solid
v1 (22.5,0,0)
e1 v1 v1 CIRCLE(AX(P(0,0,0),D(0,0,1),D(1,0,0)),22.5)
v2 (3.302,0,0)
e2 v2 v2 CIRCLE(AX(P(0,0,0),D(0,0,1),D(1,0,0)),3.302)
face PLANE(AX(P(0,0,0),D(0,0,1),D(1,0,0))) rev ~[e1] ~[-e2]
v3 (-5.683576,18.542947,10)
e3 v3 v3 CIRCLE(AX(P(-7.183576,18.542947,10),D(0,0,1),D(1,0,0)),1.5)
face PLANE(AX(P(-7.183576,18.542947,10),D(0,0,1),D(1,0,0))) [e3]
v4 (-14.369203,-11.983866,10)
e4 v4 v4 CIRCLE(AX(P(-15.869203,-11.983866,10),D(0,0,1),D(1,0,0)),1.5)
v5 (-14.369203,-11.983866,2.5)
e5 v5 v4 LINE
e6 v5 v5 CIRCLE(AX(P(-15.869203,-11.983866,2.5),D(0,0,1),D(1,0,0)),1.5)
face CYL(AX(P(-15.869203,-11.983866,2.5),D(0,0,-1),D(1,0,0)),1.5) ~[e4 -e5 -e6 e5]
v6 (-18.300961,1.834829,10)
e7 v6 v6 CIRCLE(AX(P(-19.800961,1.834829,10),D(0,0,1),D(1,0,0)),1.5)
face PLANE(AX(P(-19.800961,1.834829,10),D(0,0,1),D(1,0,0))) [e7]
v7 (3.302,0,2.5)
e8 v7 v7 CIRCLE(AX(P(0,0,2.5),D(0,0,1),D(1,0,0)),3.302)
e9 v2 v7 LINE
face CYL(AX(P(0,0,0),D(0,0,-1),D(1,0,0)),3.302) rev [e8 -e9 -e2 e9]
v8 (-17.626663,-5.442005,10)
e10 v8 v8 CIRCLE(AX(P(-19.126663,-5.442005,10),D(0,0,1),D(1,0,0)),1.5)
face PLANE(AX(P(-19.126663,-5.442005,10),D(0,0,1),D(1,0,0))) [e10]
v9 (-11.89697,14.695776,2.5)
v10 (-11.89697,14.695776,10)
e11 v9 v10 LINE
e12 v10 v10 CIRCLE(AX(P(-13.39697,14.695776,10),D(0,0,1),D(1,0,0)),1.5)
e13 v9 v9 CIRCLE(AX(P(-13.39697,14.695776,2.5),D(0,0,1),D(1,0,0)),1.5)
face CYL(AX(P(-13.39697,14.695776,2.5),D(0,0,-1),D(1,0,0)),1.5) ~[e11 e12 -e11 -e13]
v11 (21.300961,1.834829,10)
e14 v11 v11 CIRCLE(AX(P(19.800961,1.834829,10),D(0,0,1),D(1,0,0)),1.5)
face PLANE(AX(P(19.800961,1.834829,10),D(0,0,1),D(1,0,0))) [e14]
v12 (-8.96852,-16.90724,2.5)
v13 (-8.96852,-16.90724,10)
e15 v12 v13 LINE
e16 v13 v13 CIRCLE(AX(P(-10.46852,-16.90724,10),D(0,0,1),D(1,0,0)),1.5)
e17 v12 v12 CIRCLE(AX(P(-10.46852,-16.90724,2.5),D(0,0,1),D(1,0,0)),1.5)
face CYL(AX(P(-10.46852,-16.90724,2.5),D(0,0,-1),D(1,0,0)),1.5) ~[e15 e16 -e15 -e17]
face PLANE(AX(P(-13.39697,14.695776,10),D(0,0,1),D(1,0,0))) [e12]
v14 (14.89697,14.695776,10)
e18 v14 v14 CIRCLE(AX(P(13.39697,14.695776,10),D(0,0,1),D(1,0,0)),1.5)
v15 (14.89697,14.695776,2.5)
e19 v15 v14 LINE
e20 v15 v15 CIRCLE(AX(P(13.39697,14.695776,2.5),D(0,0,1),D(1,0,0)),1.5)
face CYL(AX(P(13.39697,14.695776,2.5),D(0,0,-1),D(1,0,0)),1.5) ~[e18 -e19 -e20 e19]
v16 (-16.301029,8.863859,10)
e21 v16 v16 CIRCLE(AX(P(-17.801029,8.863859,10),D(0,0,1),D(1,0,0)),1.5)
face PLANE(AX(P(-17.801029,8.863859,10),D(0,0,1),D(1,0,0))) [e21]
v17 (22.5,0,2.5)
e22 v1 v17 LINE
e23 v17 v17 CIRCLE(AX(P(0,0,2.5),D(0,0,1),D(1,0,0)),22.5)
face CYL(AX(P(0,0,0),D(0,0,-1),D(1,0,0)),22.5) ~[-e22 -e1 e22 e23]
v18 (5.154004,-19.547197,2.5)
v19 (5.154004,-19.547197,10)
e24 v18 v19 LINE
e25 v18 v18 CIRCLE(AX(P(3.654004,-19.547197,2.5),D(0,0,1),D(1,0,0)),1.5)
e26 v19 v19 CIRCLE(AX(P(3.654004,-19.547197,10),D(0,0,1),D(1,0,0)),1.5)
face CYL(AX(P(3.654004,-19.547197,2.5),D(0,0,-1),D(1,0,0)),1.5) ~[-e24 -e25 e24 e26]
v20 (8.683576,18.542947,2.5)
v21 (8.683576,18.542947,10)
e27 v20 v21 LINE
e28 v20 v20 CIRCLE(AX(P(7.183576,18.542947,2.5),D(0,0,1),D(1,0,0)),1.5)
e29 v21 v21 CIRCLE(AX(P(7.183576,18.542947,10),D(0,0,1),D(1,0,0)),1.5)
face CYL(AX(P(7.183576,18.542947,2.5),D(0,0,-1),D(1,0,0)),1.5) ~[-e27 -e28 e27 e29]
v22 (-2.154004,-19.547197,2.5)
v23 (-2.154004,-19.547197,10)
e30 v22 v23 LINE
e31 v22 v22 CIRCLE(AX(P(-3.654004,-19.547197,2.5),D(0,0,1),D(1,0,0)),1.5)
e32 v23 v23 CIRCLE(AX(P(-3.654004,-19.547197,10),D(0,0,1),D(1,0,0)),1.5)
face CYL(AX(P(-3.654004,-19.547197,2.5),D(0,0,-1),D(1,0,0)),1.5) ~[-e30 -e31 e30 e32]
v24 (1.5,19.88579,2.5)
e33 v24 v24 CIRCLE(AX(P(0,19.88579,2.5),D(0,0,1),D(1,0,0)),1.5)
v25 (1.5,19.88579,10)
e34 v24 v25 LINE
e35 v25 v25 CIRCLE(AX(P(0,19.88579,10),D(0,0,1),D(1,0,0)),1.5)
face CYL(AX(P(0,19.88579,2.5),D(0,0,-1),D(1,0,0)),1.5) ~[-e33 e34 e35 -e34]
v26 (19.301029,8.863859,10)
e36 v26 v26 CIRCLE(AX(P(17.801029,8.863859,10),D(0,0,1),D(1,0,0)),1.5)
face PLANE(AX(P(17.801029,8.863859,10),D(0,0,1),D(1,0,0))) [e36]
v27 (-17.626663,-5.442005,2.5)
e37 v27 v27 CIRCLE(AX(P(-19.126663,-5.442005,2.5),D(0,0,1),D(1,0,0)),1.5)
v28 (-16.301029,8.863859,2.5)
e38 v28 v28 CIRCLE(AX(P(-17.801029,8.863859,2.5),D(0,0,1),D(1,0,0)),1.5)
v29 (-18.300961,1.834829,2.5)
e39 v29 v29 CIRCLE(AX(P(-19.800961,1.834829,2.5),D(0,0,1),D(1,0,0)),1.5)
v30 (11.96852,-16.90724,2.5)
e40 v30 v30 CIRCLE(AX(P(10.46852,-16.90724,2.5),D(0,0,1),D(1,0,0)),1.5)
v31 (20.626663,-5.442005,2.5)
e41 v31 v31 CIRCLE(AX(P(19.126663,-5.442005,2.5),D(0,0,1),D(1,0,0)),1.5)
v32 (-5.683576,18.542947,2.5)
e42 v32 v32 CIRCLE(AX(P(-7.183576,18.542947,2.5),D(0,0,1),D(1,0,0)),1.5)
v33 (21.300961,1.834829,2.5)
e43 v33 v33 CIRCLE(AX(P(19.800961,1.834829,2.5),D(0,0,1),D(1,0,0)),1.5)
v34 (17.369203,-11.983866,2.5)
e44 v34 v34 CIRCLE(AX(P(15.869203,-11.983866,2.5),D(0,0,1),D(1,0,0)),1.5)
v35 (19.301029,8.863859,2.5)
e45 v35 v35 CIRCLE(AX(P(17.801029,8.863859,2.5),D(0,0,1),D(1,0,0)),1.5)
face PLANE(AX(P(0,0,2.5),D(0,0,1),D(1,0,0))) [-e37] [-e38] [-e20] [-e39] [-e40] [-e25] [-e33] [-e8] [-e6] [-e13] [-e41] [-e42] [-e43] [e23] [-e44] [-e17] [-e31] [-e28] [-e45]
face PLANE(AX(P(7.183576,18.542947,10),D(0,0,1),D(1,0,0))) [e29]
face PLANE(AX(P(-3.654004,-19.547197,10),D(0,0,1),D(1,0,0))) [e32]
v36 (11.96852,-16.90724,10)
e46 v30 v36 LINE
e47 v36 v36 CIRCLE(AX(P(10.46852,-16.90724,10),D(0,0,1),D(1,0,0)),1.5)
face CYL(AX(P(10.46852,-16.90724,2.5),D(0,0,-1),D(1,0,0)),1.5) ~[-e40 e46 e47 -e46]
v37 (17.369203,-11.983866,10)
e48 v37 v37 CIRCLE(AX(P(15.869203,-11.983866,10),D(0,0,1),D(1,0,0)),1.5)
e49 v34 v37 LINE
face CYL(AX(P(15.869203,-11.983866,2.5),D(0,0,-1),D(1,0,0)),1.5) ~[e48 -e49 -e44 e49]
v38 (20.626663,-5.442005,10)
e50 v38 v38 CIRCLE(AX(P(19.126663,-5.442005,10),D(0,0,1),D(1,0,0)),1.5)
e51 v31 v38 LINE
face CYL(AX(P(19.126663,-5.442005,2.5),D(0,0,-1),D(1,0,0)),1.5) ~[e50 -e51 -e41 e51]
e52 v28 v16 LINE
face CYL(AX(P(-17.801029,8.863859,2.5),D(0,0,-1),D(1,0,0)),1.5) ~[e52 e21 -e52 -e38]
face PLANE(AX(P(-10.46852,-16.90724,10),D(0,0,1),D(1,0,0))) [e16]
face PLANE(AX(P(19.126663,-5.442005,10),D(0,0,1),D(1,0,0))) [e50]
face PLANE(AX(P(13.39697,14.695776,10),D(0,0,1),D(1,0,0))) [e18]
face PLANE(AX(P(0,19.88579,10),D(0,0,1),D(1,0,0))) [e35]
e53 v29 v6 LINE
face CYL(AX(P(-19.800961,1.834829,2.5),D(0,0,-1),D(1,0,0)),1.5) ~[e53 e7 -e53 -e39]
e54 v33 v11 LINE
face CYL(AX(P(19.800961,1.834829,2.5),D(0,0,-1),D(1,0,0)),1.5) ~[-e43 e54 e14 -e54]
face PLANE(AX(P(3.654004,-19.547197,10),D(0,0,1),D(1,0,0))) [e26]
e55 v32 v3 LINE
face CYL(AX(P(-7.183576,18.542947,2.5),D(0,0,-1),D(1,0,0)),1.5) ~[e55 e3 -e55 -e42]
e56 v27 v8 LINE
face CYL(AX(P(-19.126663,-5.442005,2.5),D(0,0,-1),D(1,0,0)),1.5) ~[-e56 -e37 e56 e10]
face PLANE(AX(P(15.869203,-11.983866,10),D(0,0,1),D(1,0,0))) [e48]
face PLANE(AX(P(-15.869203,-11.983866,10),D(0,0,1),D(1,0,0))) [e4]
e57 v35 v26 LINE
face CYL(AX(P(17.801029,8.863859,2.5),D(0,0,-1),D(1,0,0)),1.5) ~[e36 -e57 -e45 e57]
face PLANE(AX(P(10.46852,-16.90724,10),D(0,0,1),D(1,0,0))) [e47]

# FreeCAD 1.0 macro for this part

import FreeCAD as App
import Part
import Sketcher

V = App.Vector
Q = App.Units.Quantity

doc = App.newDocument("Part")
params = doc.addObject("Spreadsheet::Sheet", "Params")
for row, (alias, value) in enumerate([
    ("sketch1_diameter", "45 mm"),
    ("pad1_length", "2.5 mm"),
    ("sketch2_diameter", "3 mm"),
    ("pad2_length", "7.5 mm"),
], start=1):
    params.set(f"A{row}", alias)
    params.set(f"B{row}", "=" + value)
    params.setAlias(f"B{row}", alias)

body = doc.addObject("PartDesign::Body", "Body")

sketch1 = doc.addObject("Sketcher::SketchObject", "Sketch")
body.addObject(sketch1)
sketch1.AttachmentSupport = (doc.XY_Plane, [""])
sketch1.MapMode = "FlatFace"
sketch1.addGeometry([
    Part.Circle(V(0, 0, 0), V(0, 0, 1), 22.5),
    Part.Circle(V(0, 0, 0), V(0, 0, 1), 3.3),
], False)
sketch1.addConstraint([
    Sketcher.Constraint("Coincident", 0, 3, -1, 1),
    Sketcher.Constraint("Coincident", 1, 3, -1, 1),
    Sketcher.Constraint("Diameter", 0, Q("45 mm")),
    Sketcher.Constraint("Diameter", 1, Q("6.604 mm")),
])
sketch1.setExpression("Constraints[2]", "Params.sketch1_diameter")
pad1 = doc.addObject("PartDesign::Pad", "Pad")
body.addObject(pad1)
pad1.Profile = sketch1
pad1.setExpression("Length", "Params.pad1_length")

sketch2 = doc.addObject("Sketcher::SketchObject", "Sketch001")
body.addObject(sketch2)
sketch2.AttachmentSupport = (doc.XY_Plane, [""])
sketch2.MapMode = "FlatFace"
sketch2.AttachmentOffset = App.Placement(V(0, 0, 2.5), App.Rotation())
sketch2.addGeometry([
    Part.Circle(V(0, 19.9, 0), V(0, 0, 1), 1.5),
    Part.Circle(V(-7.2, 18.5, 0), V(0, 0, 1), 1.5),
    Part.Circle(V(-13.4, 14.7, 0), V(0, 0, 1), 1.5),
    Part.Circle(V(-17.8, 8.9, 0), V(0, 0, 1), 1.5),
    Part.Circle(V(-19.8, 1.8, 0), V(0, 0, 1), 1.5),
    Part.Circle(V(-19.1, -5.4, 0), V(0, 0, 1), 1.5),
    Part.Circle(V(-15.9, -12, 0), V(0, 0, 1), 1.5),
    Part.Circle(V(-10.5, -16.9, 0), V(0, 0, 1), 1.5),
    Part.Circle(V(-3.7, -19.5, 0), V(0, 0, 1), 1.5),
    Part.Circle(V(3.7, -19.5, 0), V(0, 0, 1), 1.5),
    Part.Circle(V(10.5, -16.9, 0), V(0, 0, 1), 1.5),
    Part.Circle(V(15.9, -12, 0), V(0, 0, 1), 1.5),
    Part.Circle(V(19.1, -5.4, 0), V(0, 0, 1), 1.5),
    Part.Circle(V(19.8, 1.8, 0), V(0, 0, 1), 1.5),
    Part.Circle(V(17.8, 8.9, 0), V(0, 0, 1), 1.5),
    Part.Circle(V(13.4, 14.7, 0), V(0, 0, 1), 1.5),
    Part.Circle(V(7.2, 18.5, 0), V(0, 0, 1), 1.5),
], False)
sketch2.addConstraint([
    Sketcher.Constraint("Equal", 0, 1),
    Sketcher.Constraint("Equal", 1, 2),
    Sketcher.Constraint("Equal", 2, 3),
    Sketcher.Constraint("Equal", 3, 4),
    Sketcher.Constraint("Equal", 4, 5),
    Sketcher.Constraint("Equal", 5, 6),
    Sketcher.Constraint("Equal", 6, 7),
    Sketcher.Constraint("Equal", 7, 8),
    Sketcher.Constraint("Equal", 8, 9),
    Sketcher.Constraint("Equal", 9, 10),
    Sketcher.Constraint("Equal", 10, 11),
    Sketcher.Constraint("Equal", 11, 12),
    Sketcher.Constraint("Equal", 12, 13),
    Sketcher.Constraint("Equal", 13, 14),
    Sketcher.Constraint("Equal", 14, 15),
    Sketcher.Constraint("Equal", 15, 16),
    Sketcher.Constraint("Symmetric", 8, 3, 9, 3, -2),
    Sketcher.Constraint("Symmetric", 7, 3, 10, 3, -2),
    Sketcher.Constraint("Symmetric", 6, 3, 11, 3, -2),
    Sketcher.Constraint("Symmetric", 5, 3, 12, 3, -2),
    Sketcher.Constraint("Symmetric", 4, 3, 13, 3, -2),
    Sketcher.Constraint("Symmetric", 3, 3, 14, 3, -2),
    Sketcher.Constraint("Symmetric", 2, 3, 15, 3, -2),
    Sketcher.Constraint("Symmetric", 1, 3, 16, 3, -2),
    Sketcher.Constraint("PointOnObject", 0, 3, -2),
    Sketcher.Constraint("Diameter", 0, Q("3 mm")),
    Sketcher.Constraint("DistanceX", 4, 3, 5, 3, Q("0.674298 mm")),
    Sketcher.Constraint("DistanceY", 7, 3, 3, 3, Q("25.771099 mm")),
    Sketcher.Constraint("DistanceX", 6, 3, 8, 3, Q("12.215199 mm")),
    Sketcher.Constraint("DistanceY", -1, 1, 0, 3, Q("19.88579 mm")),
    Sketcher.Constraint("DistanceX", 2, 3, -1, 1, Q("13.39697 mm")),
    Sketcher.Constraint("DistanceX", 3, 3, -1, 1, Q("17.801029 mm")),
    Sketcher.Constraint("DistanceY", -1, 1, 3, 3, Q("8.863859 mm")),
    Sketcher.Constraint("DistanceX", 4, 3, -1, 1, Q("19.800961 mm")),
    Sketcher.Constraint("DistanceY", -1, 1, 4, 3, Q("1.834829 mm")),
    Sketcher.Constraint("DistanceX", 7, 3, -1, 1, Q("10.46852 mm")),
    Sketcher.Constraint("DistanceY", 2, 3, 1, 3, Q("3.847171 mm")),
    Sketcher.Constraint("DistanceY", 3, 3, 1, 3, Q("9.679088 mm")),
    Sketcher.Constraint("DistanceY", 5, 3, 2, 3, Q("20.137781 mm")),
    Sketcher.Constraint("DistanceX", 5, 3, 6, 3, Q("3.25746 mm")),
    Sketcher.Constraint("DistanceY", 6, 3, 5, 3, Q("6.541861 mm")),
    Sketcher.Constraint("DistanceY", 8, 3, 6, 3, Q("7.563331 mm")),
    Sketcher.Constraint("DistanceX", 1, 3, -1, 1, Q("7.183576 mm")),
])
sketch2.setExpression("Constraints[25]", "Params.sketch2_diameter")
pad2 = doc.addObject("PartDesign::Pad", "Pad001")
body.addObject(pad2)
pad2.Profile = sketch2
pad2.setExpression("Length", "Params.pad2_length")

doc.recompute()
